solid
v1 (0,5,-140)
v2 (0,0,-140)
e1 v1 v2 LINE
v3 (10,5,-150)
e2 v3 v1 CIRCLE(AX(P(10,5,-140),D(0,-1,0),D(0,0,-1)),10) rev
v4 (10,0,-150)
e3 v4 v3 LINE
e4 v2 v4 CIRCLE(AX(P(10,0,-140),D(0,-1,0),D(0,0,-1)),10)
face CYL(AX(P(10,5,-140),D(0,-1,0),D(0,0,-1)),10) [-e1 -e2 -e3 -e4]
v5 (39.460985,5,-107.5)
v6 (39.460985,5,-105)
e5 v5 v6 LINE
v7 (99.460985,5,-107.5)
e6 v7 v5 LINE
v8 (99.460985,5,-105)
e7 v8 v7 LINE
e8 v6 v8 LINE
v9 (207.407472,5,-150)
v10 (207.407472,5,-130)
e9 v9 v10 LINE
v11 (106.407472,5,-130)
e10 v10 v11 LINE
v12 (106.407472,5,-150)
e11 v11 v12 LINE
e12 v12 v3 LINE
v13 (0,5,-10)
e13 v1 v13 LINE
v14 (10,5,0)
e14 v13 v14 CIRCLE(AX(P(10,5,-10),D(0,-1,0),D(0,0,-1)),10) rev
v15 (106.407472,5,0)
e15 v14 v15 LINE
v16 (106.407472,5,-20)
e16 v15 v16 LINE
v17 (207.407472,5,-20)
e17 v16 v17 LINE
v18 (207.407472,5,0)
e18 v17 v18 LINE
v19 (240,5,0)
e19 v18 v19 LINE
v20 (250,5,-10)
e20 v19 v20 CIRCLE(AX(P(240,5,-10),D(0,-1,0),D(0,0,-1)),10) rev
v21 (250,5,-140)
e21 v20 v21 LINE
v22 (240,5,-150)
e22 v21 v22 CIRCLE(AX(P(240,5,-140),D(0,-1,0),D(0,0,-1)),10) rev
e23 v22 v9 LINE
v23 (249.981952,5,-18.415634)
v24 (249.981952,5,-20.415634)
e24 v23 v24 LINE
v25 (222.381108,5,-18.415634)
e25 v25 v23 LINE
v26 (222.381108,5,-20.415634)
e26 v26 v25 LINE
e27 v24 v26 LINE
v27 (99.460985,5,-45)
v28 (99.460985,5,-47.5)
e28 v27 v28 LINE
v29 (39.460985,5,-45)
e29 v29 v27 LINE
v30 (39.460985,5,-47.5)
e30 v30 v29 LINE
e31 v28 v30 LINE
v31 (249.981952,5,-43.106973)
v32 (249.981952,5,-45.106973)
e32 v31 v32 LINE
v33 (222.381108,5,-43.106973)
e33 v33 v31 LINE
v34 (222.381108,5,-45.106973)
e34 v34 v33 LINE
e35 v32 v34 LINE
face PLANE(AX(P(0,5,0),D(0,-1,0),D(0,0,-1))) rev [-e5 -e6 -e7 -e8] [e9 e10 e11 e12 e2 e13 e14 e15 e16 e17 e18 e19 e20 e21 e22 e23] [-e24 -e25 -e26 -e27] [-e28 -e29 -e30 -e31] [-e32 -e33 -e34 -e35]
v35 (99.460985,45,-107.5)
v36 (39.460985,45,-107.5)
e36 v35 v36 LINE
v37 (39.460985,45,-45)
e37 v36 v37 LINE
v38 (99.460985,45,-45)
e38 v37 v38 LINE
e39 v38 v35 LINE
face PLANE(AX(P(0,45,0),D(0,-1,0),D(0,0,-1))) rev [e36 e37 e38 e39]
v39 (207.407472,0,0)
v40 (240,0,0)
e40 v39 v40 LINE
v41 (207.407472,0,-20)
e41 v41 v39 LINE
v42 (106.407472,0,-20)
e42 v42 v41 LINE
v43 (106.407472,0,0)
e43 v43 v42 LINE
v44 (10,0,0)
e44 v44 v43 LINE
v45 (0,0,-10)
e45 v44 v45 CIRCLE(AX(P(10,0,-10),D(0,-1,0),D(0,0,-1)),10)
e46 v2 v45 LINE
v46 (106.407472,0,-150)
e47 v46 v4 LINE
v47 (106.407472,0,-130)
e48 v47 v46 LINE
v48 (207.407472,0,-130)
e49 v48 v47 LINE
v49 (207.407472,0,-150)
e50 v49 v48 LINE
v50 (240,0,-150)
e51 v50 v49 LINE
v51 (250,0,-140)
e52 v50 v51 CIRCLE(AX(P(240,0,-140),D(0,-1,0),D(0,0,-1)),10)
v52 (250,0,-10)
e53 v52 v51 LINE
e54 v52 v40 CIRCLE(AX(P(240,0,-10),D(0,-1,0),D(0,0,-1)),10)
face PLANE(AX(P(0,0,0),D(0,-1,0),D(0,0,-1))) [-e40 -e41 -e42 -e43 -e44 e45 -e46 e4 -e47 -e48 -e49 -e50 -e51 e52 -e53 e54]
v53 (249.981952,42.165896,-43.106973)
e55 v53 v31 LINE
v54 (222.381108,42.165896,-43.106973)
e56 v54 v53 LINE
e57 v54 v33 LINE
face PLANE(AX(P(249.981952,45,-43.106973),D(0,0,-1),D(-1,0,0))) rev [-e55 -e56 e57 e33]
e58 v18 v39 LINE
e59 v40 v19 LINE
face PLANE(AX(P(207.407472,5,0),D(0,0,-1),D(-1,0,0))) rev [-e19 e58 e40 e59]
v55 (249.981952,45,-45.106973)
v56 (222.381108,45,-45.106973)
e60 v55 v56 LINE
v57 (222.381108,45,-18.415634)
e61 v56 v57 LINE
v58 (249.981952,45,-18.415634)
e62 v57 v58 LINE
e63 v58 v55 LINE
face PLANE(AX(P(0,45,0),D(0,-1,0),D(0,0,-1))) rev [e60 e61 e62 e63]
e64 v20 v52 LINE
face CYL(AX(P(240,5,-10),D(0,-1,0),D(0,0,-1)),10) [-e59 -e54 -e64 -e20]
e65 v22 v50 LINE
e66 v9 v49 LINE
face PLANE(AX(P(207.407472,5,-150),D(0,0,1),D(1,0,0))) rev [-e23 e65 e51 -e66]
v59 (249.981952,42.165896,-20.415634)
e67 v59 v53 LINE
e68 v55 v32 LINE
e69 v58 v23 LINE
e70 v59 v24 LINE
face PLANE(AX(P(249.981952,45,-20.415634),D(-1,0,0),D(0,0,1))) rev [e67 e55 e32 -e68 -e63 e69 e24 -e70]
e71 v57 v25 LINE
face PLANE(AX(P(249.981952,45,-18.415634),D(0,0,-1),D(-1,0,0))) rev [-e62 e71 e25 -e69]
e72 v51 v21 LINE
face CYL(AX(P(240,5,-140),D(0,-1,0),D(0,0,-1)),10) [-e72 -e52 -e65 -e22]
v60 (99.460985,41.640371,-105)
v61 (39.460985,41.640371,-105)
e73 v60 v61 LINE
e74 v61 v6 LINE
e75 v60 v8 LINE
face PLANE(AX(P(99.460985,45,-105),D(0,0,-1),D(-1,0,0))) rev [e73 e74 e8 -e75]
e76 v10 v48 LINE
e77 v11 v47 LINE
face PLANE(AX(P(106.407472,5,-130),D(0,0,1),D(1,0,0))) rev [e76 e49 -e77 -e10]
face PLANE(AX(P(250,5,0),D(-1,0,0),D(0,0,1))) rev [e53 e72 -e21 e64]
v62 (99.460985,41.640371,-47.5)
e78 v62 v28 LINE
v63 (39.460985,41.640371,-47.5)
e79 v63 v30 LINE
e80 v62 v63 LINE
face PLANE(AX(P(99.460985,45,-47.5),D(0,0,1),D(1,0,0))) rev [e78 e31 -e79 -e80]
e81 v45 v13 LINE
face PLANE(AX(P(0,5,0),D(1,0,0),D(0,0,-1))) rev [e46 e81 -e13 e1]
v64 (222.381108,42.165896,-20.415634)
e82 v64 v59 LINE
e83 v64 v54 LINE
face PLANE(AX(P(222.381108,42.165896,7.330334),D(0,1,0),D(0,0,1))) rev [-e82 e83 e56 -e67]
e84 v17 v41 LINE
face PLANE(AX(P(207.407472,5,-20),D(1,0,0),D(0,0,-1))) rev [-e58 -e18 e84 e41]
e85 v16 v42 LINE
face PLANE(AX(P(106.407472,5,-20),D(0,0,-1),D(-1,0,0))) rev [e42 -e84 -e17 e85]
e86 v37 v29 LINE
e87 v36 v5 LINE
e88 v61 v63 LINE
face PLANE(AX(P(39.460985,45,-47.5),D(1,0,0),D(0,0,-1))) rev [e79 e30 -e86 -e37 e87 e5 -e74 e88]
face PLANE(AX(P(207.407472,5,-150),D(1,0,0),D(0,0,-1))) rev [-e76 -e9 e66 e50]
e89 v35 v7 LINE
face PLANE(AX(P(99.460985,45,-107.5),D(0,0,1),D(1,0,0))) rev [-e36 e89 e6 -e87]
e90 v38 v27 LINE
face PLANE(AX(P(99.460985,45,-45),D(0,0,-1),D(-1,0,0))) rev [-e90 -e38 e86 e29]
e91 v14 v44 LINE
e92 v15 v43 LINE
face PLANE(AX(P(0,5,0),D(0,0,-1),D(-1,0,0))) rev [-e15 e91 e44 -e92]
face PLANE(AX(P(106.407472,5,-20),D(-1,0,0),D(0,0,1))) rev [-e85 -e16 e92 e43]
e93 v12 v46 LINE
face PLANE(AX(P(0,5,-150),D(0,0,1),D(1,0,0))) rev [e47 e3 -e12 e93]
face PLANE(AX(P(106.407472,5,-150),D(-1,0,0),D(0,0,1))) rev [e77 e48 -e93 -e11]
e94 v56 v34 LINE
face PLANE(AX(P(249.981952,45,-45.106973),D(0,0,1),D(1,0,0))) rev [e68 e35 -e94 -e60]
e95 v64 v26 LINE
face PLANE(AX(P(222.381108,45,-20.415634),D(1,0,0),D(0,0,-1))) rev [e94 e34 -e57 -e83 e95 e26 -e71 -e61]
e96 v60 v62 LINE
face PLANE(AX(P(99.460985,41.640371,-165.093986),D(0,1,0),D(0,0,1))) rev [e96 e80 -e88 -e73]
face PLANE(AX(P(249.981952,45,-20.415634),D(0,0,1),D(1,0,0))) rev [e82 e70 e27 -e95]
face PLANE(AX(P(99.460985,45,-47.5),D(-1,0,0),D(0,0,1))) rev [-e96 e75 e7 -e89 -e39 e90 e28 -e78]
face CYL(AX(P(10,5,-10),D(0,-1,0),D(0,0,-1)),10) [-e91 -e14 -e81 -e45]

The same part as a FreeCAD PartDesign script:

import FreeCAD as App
import Part
import Sketcher
from FreeCAD import Vector
Q = App.Units.Quantity


def edges_at(feature, points):
    """Names of the edges that pass closest to the given points."""
    edges = feature.Shape.Edges
    near = lambda p: min(range(len(edges)), key=lambda i: edges[i].distToShape(Part.Vertex(*p))[0])
    return sorted({f"Edge{near(p) + 1}" for p in points})

doc = App.newDocument("Part")
body = doc.addObject("PartDesign::Body", "Body")

sketch1 = body.newObject("Sketcher::SketchObject", "Sketch")
sketch1.AttachmentSupport = (doc.getObject("XZ_Plane"), [""])
sketch1.MapMode = "FlatFace"
sketch1.addGeometry([
    Part.LineSegment(Vector(106, -20, 0), Vector(207, -20, 0)),
    Part.LineSegment(Vector(207, -20, 0), Vector(207, 0, 0)),
    Part.LineSegment(Vector(207, 0, 0), Vector(250, 0, 0)),
    Part.LineSegment(Vector(250, 0, 0), Vector(250, -150, 0)),
    Part.LineSegment(Vector(250, -150, 0), Vector(207, -150, 0)),
    Part.LineSegment(Vector(207, -150, 0), Vector(207, -130, 0)),
    Part.LineSegment(Vector(207, -130, 0), Vector(106, -130, 0)),
    Part.LineSegment(Vector(106, -130, 0), Vector(106, -150, 0)),
    Part.LineSegment(Vector(106, -150, 0), Vector(0, -150, 0)),
    Part.LineSegment(Vector(0, -150, 0), Vector(0, 0, 0)),
    Part.LineSegment(Vector(0, 0, 0), Vector(106, 0, 0)),
    Part.LineSegment(Vector(106, 0, 0), Vector(106, -20, 0)),
], False)
sketch1.addConstraint([
    Sketcher.Constraint("Coincident", 0, 2, 1, 1),
    Sketcher.Constraint("Coincident", 1, 2, 2, 1),
    Sketcher.Constraint("Coincident", 2, 2, 3, 1),
    Sketcher.Constraint("Coincident", 3, 2, 4, 1),
    Sketcher.Constraint("Coincident", 4, 2, 5, 1),
    Sketcher.Constraint("Coincident", 5, 2, 6, 1),
    Sketcher.Constraint("Coincident", 6, 2, 7, 1),
    Sketcher.Constraint("Coincident", 7, 2, 8, 1),
    Sketcher.Constraint("Coincident", 8, 2, 9, 1),
    Sketcher.Constraint("Coincident", 9, 2, 10, 1),
    Sketcher.Constraint("Coincident", 10, 2, 11, 1),
    Sketcher.Constraint("Coincident", 11, 2, 0, 1),
    Sketcher.Constraint("Horizontal", 0),
    Sketcher.Constraint("Vertical", 1),
    Sketcher.Constraint("Horizontal", 2),
    Sketcher.Constraint("Vertical", 3),
    Sketcher.Constraint("Horizontal", 4),
    Sketcher.Constraint("Vertical", 5),
    Sketcher.Constraint("Horizontal", 6),
    Sketcher.Constraint("Vertical", 7),
    Sketcher.Constraint("Horizontal", 8),
    Sketcher.Constraint("Vertical", 9),
    Sketcher.Constraint("Horizontal", 10),
    Sketcher.Constraint("Vertical", 11),
    Sketcher.Constraint("Coincident", 9, 2, -1, 1),
    Sketcher.Constraint("PointOnObject", 1, 2, -1),
    Sketcher.Constraint("Horizontal", 4, 2, 7, 2),
    Sketcher.Constraint("Vertical", 1, 2, 4, 2),
    Sketcher.Constraint("Vertical", 7, 2, 10, 2),
    Sketcher.Constraint("Equal", 1, 5),
    Sketcher.Constraint("DistanceX", 0, 1, 0, 2, Q("101 mm")),
    Sketcher.Constraint("DistanceY", 1, 1, 1, 2, Q("20 mm")),
    Sketcher.Constraint("DistanceY", 3, 2, 3, 1, Q("150 mm")),
    Sketcher.Constraint("DistanceX", -1, 1, 2, 2, Q("250 mm")),
    Sketcher.Constraint("DistanceX", 2, 1, 2, 2, Q("42.592528 mm")),
])
pad1 = body.newObject("PartDesign::Pad", "Pad")
pad1.Profile = sketch1
pad1.Length = 5
pad1.Reversed = True

sketch2 = body.newObject("Sketcher::SketchObject", "Sketch001")
sketch2.AttachmentSupport = (doc.getObject("XZ_Plane"), [""])
sketch2.MapMode = "FlatFace"
sketch2.AttachmentOffset = App.Placement(Vector(0, 0, -5), App.Rotation())
sketch2.addGeometry([
    Part.LineSegment(Vector(222.4, -45.1, 0), Vector(222.4, -43.1, 0)),
    Part.LineSegment(Vector(222.4, -43.1, 0), Vector(250, -43.1, 0)),
    Part.LineSegment(Vector(250, -43.1, 0), Vector(250, -45.1, 0)),
    Part.LineSegment(Vector(250, -45.1, 0), Vector(222.4, -45.1, 0)),
    Part.LineSegment(Vector(222.4, -20.4, 0), Vector(222.4, -18.4, 0)),
    Part.LineSegment(Vector(222.4, -18.4, 0), Vector(250, -18.4, 0)),
    Part.LineSegment(Vector(250, -18.4, 0), Vector(250, -20.4, 0)),
    Part.LineSegment(Vector(250, -20.4, 0), Vector(222.4, -20.4, 0)),
    Part.LineSegment(Vector(39.5, -107.5, 0), Vector(39.5, -105, 0)),
    Part.LineSegment(Vector(39.5, -105, 0), Vector(99.5, -105, 0)),
    Part.LineSegment(Vector(99.5, -105, 0), Vector(99.5, -107.5, 0)),
    Part.LineSegment(Vector(99.5, -107.5, 0), Vector(39.5, -107.5, 0)),
    Part.LineSegment(Vector(39.5, -47.5, 0), Vector(39.5, -45, 0)),
    Part.LineSegment(Vector(39.5, -45, 0), Vector(99.5, -45, 0)),
    Part.LineSegment(Vector(99.5, -45, 0), Vector(99.5, -47.5, 0)),
    Part.LineSegment(Vector(99.5, -47.5, 0), Vector(39.5, -47.5, 0)),
], False)
sketch2.addConstraint([
    Sketcher.Constraint("Coincident", 0, 2, 1, 1),
    Sketcher.Constraint("Coincident", 1, 2, 2, 1),
    Sketcher.Constraint("Coincident", 2, 2, 3, 1),
    Sketcher.Constraint("Coincident", 3, 2, 0, 1),
    Sketcher.Constraint("Coincident", 4, 2, 5, 1),
    Sketcher.Constraint("Coincident", 5, 2, 6, 1),
    Sketcher.Constraint("Coincident", 6, 2, 7, 1),
    Sketcher.Constraint("Coincident", 7, 2, 4, 1),
    Sketcher.Constraint("Coincident", 8, 2, 9, 1),
    Sketcher.Constraint("Coincident", 9, 2, 10, 1),
    Sketcher.Constraint("Coincident", 10, 2, 11, 1),
    Sketcher.Constraint("Coincident", 11, 2, 8, 1),
    Sketcher.Constraint("Coincident", 12, 2, 13, 1),
    Sketcher.Constraint("Coincident", 13, 2, 14, 1),
    Sketcher.Constraint("Coincident", 14, 2, 15, 1),
    Sketcher.Constraint("Coincident", 15, 2, 12, 1),
    Sketcher.Constraint("Vertical", 0),
    Sketcher.Constraint("Horizontal", 1),
    Sketcher.Constraint("Vertical", 2),
    Sketcher.Constraint("Horizontal", 3),
    Sketcher.Constraint("Vertical", 4),
    Sketcher.Constraint("Horizontal", 5),
    Sketcher.Constraint("Vertical", 6),
    Sketcher.Constraint("Horizontal", 7),
    Sketcher.Constraint("Vertical", 8),
    Sketcher.Constraint("Horizontal", 9),
    Sketcher.Constraint("Vertical", 10),
    Sketcher.Constraint("Horizontal", 11),
    Sketcher.Constraint("Vertical", 12),
    Sketcher.Constraint("Horizontal", 13),
    Sketcher.Constraint("Vertical", 14),
    Sketcher.Constraint("Horizontal", 15),
    Sketcher.Constraint("Vertical", 3, 2, 4, 2),
    Sketcher.Constraint("Vertical", 2, 2, 5, 2),
    Sketcher.Constraint("Vertical", 11, 2, 12, 2),
    Sketcher.Constraint("Vertical", 10, 2, 13, 2),
    Sketcher.Constraint("Equal", 2, 4),
    Sketcher.Constraint("Equal", 10, 12),
    Sketcher.Constraint("DistanceX", 9, 1, 9, 2, Q("60 mm")),
    Sketcher.Constraint("DistanceY", 0, 1, 0, 2, Q("2 mm")),
    Sketcher.Constraint("DistanceY", 8, 1, 8, 2, Q("2.5 mm")),
    Sketcher.Constraint("DistanceY", 8, 2, -1, 1, Q("105 mm")),
    Sketcher.Constraint("DistanceY", 12, 2, -1, 1, Q("45 mm")),
    Sketcher.Constraint("DistanceX", 1, 1, 1, 2, Q("27.600844 mm")),
    Sketcher.Constraint("DistanceX", -1, 1, 0, 2, Q("222.381108 mm")),
    Sketcher.Constraint("DistanceY", 0, 2, 4, 2, Q("24.69134 mm")),
    Sketcher.Constraint("DistanceY", 0, 2, -1, 1, Q("43.106973 mm")),
    Sketcher.Constraint("DistanceX", -1, 1, 8, 2, Q("39.460985 mm")),
])
pad2 = body.newObject("PartDesign::Pad", "Pad001")
pad2.Profile = sketch2
pad2.Length = 40
pad2.Reversed = True

sketch3 = body.newObject("Sketcher::SketchObject", "Sketch002")
sketch3.AttachmentSupport = (doc.getObject("XY_Plane"), [""])
sketch3.MapMode = "FlatFace"
sketch3.AttachmentOffset = App.Placement(Vector(0, 0, -43.106973), App.Rotation())
sketch3.addGeometry([
    Part.LineSegment(Vector(222.4, 45, 0), Vector(222.4, 42.2, 0)),
    Part.LineSegment(Vector(222.4, 42.2, 0), Vector(250, 42.2, 0)),
    Part.LineSegment(Vector(250, 42.2, 0), Vector(250, 45, 0)),
    Part.LineSegment(Vector(250, 45, 0), Vector(222.4, 45, 0)),
], False)
sketch3.addConstraint([
    Sketcher.Constraint("Coincident", 0, 2, 1, 1),
    Sketcher.Constraint("Coincident", 1, 2, 2, 1),
    Sketcher.Constraint("Coincident", 2, 2, 3, 1),
    Sketcher.Constraint("Coincident", 3, 2, 0, 1),
    Sketcher.Constraint("Vertical", 0),
    Sketcher.Constraint("Horizontal", 1),
    Sketcher.Constraint("Vertical", 2),
    Sketcher.Constraint("Horizontal", 3),
    Sketcher.Constraint("DistanceY", -1, 1, 2, 2, Q("45 mm")),
    Sketcher.Constraint("DistanceX", 1, 1, 1, 2, Q("27.600844 mm")),
    Sketcher.Constraint("DistanceY", 0, 2, 0, 1, Q("2.834104 mm")),
    Sketcher.Constraint("DistanceX", -1, 1, 0, 2, Q("222.381108 mm")),
])
pad3 = body.newObject("PartDesign::Pad", "Pad002")
pad3.Profile = sketch3
pad3.Length = 22.69134

sketch4 = body.newObject("Sketcher::SketchObject", "Sketch003")
sketch4.AttachmentSupport = (doc.getObject("XY_Plane"), [""])
sketch4.MapMode = "FlatFace"
sketch4.AttachmentOffset = App.Placement(Vector(0, 0, -47.5), App.Rotation())
sketch4.addGeometry([
    Part.LineSegment(Vector(99.5, 45, 0), Vector(99.5, 41.6, 0)),
    Part.LineSegment(Vector(99.5, 41.6, 0), Vector(39.5, 41.6, 0)),
    Part.LineSegment(Vector(39.5, 41.6, 0), Vector(39.5, 45, 0)),
    Part.LineSegment(Vector(39.5, 45, 0), Vector(99.5, 45, 0)),
], False)
sketch4.addConstraint([
    Sketcher.Constraint("Coincident", 0, 2, 1, 1),
    Sketcher.Constraint("Coincident", 1, 2, 2, 1),
    Sketcher.Constraint("Coincident", 2, 2, 3, 1),
    Sketcher.Constraint("Coincident", 3, 2, 0, 1),
    Sketcher.Constraint("Vertical", 0),
    Sketcher.Constraint("Horizontal", 1),
    Sketcher.Constraint("Vertical", 2),
    Sketcher.Constraint("Horizontal", 3),
    Sketcher.Constraint("DistanceX", 1, 2, 1, 1, Q("60 mm")),
    Sketcher.Constraint("DistanceY", -1, 1, 2, 2, Q("45 mm")),
    Sketcher.Constraint("DistanceY", 0, 2, 0, 1, Q("3.359629 mm")),
    Sketcher.Constraint("DistanceX", -1, 1, 0, 2, Q("99.460985 mm")),
])
pad4 = body.newObject("PartDesign::Pad", "Pad003")
pad4.Profile = sketch4
pad4.Length = 57.5
pad4.Reversed = True
doc.recompute()

fillet = body.newObject("PartDesign::Fillet", "Fillet")
fillet.Base = (pad4, edges_at(pad4, [
    (0, 2.5, -150),
    (250, 2.5, -150),
    (250, 2.5, 0),
    (0, 2.5, 0),
]))
fillet.Radius = 10

doc.recompute()
